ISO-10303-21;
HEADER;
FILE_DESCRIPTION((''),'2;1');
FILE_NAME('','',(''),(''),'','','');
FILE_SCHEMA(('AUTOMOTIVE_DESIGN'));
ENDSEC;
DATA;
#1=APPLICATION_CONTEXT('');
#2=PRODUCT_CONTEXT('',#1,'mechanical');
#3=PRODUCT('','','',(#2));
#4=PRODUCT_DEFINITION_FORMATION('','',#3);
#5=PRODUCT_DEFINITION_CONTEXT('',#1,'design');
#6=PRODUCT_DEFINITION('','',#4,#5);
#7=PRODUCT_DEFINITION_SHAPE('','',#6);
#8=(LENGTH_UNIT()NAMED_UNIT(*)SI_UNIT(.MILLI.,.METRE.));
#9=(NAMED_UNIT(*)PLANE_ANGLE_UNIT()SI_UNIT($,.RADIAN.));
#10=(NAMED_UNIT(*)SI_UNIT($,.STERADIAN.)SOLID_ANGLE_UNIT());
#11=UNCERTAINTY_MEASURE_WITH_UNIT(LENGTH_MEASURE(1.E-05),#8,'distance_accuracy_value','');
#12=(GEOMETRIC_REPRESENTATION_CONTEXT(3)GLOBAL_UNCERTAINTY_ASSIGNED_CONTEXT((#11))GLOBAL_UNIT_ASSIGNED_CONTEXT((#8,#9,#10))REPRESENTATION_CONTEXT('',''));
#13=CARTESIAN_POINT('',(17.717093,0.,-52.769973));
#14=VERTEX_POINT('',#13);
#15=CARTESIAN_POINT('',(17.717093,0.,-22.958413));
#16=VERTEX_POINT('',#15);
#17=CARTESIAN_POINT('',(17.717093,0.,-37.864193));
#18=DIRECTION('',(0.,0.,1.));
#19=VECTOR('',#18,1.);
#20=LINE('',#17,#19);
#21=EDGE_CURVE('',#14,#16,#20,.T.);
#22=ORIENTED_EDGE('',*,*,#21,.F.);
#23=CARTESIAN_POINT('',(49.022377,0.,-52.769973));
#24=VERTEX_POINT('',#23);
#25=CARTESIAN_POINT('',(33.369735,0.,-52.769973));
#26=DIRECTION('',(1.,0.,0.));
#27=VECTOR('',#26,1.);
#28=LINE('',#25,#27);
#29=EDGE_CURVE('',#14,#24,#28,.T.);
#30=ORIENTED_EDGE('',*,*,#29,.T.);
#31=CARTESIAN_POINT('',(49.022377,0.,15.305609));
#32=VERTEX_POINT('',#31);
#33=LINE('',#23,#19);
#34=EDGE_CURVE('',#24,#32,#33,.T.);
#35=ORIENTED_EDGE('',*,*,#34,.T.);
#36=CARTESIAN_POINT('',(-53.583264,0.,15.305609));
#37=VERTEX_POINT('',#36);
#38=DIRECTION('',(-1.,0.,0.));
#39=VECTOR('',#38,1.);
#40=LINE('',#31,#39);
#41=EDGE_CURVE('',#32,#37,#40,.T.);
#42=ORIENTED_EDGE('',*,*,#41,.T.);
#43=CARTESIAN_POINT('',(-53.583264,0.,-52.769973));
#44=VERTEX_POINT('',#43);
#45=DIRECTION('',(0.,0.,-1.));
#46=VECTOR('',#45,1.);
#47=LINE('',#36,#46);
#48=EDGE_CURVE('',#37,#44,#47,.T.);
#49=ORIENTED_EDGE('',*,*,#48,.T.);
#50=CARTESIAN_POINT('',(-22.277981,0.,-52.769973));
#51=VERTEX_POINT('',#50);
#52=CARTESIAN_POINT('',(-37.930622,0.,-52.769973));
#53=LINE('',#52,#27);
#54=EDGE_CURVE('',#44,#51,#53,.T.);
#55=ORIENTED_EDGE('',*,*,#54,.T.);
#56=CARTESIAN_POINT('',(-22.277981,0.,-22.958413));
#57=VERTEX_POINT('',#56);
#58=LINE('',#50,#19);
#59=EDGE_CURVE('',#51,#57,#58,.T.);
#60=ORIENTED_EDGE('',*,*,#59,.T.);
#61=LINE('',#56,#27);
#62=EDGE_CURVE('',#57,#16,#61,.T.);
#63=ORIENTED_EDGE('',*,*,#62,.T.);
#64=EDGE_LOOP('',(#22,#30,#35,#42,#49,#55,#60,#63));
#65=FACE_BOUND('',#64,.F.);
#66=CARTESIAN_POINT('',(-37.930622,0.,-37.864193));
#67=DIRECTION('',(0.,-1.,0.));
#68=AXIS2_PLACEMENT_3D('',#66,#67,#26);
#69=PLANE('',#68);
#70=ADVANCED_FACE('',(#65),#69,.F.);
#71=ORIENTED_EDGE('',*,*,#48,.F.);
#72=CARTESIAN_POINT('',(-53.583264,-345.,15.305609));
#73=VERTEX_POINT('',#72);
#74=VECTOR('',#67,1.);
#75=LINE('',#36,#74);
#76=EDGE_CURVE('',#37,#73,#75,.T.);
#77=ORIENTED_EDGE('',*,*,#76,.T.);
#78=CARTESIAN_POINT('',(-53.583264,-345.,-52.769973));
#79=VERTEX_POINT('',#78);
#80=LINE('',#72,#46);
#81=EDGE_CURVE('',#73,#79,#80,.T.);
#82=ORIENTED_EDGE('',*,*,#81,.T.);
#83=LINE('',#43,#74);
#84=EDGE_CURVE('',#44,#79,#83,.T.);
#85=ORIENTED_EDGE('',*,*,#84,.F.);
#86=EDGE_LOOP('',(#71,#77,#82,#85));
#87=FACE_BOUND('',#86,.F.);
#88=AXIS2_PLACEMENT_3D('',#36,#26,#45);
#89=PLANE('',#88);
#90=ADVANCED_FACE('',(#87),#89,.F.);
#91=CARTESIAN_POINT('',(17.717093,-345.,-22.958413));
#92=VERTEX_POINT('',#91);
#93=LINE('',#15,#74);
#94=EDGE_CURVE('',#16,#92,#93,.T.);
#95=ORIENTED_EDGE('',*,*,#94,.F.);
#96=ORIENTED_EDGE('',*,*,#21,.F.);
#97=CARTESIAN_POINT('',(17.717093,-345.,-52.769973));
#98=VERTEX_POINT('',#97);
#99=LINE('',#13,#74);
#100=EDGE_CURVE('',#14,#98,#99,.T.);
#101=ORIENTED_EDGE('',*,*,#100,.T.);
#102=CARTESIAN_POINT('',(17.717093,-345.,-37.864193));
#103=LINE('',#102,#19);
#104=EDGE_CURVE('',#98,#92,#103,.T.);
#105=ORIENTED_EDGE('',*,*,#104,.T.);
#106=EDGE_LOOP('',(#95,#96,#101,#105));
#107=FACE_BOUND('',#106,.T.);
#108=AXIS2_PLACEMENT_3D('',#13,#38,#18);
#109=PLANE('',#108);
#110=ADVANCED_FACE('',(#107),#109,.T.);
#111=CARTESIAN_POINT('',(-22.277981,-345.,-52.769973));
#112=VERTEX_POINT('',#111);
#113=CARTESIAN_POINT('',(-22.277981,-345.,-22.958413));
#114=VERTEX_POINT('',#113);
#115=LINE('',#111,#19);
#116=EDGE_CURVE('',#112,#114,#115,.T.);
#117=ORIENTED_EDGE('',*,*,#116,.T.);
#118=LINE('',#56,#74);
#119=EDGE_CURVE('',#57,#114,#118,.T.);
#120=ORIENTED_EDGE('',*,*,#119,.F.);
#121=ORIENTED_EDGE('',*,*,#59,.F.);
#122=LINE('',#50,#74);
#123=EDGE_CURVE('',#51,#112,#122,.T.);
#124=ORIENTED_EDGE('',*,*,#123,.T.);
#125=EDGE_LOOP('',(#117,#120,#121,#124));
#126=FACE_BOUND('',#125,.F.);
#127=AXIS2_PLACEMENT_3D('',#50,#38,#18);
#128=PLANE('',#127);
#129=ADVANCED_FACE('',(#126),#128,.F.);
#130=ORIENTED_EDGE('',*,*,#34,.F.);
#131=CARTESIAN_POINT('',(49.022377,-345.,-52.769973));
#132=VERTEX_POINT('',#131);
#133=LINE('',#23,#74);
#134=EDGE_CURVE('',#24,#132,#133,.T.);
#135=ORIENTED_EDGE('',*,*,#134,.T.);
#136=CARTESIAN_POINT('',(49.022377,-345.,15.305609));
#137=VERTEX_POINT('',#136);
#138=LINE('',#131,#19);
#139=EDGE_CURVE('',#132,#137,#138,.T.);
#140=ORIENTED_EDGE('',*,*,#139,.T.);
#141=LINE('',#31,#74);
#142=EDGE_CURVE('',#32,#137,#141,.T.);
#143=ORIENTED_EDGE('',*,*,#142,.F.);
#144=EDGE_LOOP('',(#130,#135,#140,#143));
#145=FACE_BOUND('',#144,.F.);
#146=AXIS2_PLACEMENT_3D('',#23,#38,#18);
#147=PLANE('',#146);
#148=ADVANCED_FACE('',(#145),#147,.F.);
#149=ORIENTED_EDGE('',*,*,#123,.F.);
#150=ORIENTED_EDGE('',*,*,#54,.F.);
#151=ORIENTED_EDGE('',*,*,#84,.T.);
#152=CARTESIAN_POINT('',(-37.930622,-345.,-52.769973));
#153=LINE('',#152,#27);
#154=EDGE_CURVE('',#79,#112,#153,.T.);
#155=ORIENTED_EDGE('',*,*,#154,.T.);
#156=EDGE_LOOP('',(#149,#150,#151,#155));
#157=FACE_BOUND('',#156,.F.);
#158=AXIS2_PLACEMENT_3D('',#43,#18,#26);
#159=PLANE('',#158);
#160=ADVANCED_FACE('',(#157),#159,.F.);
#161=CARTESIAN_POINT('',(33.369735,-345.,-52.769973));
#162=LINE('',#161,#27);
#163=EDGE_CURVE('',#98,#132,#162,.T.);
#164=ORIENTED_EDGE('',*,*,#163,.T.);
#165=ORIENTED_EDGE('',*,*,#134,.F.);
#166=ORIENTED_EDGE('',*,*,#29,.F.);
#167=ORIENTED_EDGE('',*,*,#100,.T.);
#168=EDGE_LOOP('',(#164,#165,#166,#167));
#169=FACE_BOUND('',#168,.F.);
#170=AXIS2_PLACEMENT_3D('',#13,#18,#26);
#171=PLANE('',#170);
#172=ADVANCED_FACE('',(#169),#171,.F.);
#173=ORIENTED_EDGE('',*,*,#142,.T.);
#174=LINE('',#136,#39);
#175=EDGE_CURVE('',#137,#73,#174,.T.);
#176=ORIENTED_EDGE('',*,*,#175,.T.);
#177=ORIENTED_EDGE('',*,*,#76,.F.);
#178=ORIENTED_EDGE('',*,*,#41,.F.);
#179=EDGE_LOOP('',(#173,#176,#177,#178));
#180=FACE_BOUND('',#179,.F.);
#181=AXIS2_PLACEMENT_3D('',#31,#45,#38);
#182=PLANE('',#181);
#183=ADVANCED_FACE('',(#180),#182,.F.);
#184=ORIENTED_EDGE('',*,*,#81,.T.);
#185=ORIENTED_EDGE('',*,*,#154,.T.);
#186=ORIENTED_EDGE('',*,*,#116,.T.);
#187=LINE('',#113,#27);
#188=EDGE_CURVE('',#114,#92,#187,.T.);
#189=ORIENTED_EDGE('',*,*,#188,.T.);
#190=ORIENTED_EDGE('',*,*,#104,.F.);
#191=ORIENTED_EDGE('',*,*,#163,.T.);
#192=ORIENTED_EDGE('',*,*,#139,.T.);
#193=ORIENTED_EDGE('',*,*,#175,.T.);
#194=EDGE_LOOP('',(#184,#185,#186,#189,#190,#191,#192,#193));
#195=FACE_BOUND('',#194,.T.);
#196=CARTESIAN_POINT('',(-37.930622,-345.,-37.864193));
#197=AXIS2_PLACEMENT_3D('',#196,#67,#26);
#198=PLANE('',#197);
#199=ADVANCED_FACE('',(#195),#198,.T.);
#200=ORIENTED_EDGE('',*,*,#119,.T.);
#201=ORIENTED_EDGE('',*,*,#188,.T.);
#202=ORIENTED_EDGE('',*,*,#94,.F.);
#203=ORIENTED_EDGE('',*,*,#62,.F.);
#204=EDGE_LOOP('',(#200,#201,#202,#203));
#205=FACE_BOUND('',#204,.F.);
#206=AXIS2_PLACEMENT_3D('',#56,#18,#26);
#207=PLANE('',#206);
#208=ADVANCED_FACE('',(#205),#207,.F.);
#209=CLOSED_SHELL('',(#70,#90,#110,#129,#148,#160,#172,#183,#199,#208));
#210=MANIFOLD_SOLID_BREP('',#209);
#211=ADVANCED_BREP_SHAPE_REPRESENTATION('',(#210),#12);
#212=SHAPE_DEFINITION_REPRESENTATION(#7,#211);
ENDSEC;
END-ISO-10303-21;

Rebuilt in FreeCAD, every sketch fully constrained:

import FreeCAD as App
import Part
import Sketcher

V = App.Vector
Q = App.Units.Quantity

doc = App.newDocument("Part")
params = doc.addObject("Spreadsheet::Sheet", "Params")
for row, (alias, value) in enumerate([
    ("pad1_length", "345 mm"),
], start=1):
    params.set(f"A{row}", alias)
    params.set(f"B{row}", "=" + value)
    params.setAlias(f"B{row}", alias)

body = doc.addObject("PartDesign::Body", "Body")

# Sketch on XZ plane
sketch1 = body.newObject("Sketcher::SketchObject", "Sketch")
sketch1.AttachmentSupport = (doc.getObject("XZ_Plane"), [""])
sketch1.MapMode = "FlatFace"
sketch1.addGeometry(Part.LineSegment(V(49, 15, 0), V(-54, 15, 0)), False)
sketch1.addGeometry(Part.LineSegment(V(-54, 15, 0), V(-54, -53, 0)), False)
sketch1.addGeometry(Part.LineSegment(V(-54, -53, 0), V(-22, -53, 0)), False)
sketch1.addGeometry(Part.LineSegment(V(-22, -53, 0), V(-22, -23, 0)), False)
sketch1.addGeometry(Part.LineSegment(V(-22, -23, 0), V(18, -23, 0)), False)
sketch1.addGeometry(Part.LineSegment(V(18, -23, 0), V(18, -53, 0)), False)
sketch1.addGeometry(Part.LineSegment(V(18, -53, 0), V(49, -53, 0)), False)
sketch1.addGeometry(Part.LineSegment(V(49, -53, 0), V(49, 15, 0)), False)
sketch1.addConstraint(Sketcher.Constraint("Coincident", 0, 2, 1, 1))
sketch1.addConstraint(Sketcher.Constraint("Coincident", 1, 2, 2, 1))
sketch1.addConstraint(Sketcher.Constraint("Coincident", 2, 2, 3, 1))
sketch1.addConstraint(Sketcher.Constraint("Coincident", 3, 2, 4, 1))
sketch1.addConstraint(Sketcher.Constraint("Coincident", 4, 2, 5, 1))
sketch1.addConstraint(Sketcher.Constraint("Coincident", 5, 2, 6, 1))
sketch1.addConstraint(Sketcher.Constraint("Coincident", 6, 2, 7, 1))
sketch1.addConstraint(Sketcher.Constraint("Coincident", 7, 2, 0, 1))
sketch1.addConstraint(Sketcher.Constraint("Horizontal", 0))
sketch1.addConstraint(Sketcher.Constraint("Vertical", 1))
sketch1.addConstraint(Sketcher.Constraint("Horizontal", 2))
sketch1.addConstraint(Sketcher.Constraint("Vertical", 3))
sketch1.addConstraint(Sketcher.Constraint("Horizontal", 4))
sketch1.addConstraint(Sketcher.Constraint("Vertical", 5))
sketch1.addConstraint(Sketcher.Constraint("Horizontal", 6))
sketch1.addConstraint(Sketcher.Constraint("Vertical", 7))
sketch1.addConstraint(Sketcher.Constraint("Horizontal", 2, 2, 5, 2))
sketch1.addConstraint(Sketcher.Constraint("Equal", 2, 6))
sketch1.addConstraint(Sketcher.Constraint("DistanceX", 0, 2, 0, 1, Q("102.60564 mm")))
sketch1.addConstraint(Sketcher.Constraint("DistanceY", 3, 1, 3, 2, Q("29.81156 mm")))
sketch1.addConstraint(Sketcher.Constraint("DistanceX", 2, 1, 2, 2, Q("31.305283 mm")))
sketch1.addConstraint(Sketcher.Constraint("DistanceY", 1, 2, 1, 1, Q("68.075582 mm")))
sketch1.addConstraint(Sketcher.Constraint("DistanceY", -1, 1, 0, 2, Q("15.305609 mm")))
sketch1.addConstraint(Sketcher.Constraint("DistanceX", 2, 2, -1, 1, Q("22.277981 mm")))
pad1 = body.newObject("PartDesign::Pad", "Pad")
pad1.Profile = sketch1
pad1.setExpression("Length", "Params.pad1_length")

doc.recompute()
